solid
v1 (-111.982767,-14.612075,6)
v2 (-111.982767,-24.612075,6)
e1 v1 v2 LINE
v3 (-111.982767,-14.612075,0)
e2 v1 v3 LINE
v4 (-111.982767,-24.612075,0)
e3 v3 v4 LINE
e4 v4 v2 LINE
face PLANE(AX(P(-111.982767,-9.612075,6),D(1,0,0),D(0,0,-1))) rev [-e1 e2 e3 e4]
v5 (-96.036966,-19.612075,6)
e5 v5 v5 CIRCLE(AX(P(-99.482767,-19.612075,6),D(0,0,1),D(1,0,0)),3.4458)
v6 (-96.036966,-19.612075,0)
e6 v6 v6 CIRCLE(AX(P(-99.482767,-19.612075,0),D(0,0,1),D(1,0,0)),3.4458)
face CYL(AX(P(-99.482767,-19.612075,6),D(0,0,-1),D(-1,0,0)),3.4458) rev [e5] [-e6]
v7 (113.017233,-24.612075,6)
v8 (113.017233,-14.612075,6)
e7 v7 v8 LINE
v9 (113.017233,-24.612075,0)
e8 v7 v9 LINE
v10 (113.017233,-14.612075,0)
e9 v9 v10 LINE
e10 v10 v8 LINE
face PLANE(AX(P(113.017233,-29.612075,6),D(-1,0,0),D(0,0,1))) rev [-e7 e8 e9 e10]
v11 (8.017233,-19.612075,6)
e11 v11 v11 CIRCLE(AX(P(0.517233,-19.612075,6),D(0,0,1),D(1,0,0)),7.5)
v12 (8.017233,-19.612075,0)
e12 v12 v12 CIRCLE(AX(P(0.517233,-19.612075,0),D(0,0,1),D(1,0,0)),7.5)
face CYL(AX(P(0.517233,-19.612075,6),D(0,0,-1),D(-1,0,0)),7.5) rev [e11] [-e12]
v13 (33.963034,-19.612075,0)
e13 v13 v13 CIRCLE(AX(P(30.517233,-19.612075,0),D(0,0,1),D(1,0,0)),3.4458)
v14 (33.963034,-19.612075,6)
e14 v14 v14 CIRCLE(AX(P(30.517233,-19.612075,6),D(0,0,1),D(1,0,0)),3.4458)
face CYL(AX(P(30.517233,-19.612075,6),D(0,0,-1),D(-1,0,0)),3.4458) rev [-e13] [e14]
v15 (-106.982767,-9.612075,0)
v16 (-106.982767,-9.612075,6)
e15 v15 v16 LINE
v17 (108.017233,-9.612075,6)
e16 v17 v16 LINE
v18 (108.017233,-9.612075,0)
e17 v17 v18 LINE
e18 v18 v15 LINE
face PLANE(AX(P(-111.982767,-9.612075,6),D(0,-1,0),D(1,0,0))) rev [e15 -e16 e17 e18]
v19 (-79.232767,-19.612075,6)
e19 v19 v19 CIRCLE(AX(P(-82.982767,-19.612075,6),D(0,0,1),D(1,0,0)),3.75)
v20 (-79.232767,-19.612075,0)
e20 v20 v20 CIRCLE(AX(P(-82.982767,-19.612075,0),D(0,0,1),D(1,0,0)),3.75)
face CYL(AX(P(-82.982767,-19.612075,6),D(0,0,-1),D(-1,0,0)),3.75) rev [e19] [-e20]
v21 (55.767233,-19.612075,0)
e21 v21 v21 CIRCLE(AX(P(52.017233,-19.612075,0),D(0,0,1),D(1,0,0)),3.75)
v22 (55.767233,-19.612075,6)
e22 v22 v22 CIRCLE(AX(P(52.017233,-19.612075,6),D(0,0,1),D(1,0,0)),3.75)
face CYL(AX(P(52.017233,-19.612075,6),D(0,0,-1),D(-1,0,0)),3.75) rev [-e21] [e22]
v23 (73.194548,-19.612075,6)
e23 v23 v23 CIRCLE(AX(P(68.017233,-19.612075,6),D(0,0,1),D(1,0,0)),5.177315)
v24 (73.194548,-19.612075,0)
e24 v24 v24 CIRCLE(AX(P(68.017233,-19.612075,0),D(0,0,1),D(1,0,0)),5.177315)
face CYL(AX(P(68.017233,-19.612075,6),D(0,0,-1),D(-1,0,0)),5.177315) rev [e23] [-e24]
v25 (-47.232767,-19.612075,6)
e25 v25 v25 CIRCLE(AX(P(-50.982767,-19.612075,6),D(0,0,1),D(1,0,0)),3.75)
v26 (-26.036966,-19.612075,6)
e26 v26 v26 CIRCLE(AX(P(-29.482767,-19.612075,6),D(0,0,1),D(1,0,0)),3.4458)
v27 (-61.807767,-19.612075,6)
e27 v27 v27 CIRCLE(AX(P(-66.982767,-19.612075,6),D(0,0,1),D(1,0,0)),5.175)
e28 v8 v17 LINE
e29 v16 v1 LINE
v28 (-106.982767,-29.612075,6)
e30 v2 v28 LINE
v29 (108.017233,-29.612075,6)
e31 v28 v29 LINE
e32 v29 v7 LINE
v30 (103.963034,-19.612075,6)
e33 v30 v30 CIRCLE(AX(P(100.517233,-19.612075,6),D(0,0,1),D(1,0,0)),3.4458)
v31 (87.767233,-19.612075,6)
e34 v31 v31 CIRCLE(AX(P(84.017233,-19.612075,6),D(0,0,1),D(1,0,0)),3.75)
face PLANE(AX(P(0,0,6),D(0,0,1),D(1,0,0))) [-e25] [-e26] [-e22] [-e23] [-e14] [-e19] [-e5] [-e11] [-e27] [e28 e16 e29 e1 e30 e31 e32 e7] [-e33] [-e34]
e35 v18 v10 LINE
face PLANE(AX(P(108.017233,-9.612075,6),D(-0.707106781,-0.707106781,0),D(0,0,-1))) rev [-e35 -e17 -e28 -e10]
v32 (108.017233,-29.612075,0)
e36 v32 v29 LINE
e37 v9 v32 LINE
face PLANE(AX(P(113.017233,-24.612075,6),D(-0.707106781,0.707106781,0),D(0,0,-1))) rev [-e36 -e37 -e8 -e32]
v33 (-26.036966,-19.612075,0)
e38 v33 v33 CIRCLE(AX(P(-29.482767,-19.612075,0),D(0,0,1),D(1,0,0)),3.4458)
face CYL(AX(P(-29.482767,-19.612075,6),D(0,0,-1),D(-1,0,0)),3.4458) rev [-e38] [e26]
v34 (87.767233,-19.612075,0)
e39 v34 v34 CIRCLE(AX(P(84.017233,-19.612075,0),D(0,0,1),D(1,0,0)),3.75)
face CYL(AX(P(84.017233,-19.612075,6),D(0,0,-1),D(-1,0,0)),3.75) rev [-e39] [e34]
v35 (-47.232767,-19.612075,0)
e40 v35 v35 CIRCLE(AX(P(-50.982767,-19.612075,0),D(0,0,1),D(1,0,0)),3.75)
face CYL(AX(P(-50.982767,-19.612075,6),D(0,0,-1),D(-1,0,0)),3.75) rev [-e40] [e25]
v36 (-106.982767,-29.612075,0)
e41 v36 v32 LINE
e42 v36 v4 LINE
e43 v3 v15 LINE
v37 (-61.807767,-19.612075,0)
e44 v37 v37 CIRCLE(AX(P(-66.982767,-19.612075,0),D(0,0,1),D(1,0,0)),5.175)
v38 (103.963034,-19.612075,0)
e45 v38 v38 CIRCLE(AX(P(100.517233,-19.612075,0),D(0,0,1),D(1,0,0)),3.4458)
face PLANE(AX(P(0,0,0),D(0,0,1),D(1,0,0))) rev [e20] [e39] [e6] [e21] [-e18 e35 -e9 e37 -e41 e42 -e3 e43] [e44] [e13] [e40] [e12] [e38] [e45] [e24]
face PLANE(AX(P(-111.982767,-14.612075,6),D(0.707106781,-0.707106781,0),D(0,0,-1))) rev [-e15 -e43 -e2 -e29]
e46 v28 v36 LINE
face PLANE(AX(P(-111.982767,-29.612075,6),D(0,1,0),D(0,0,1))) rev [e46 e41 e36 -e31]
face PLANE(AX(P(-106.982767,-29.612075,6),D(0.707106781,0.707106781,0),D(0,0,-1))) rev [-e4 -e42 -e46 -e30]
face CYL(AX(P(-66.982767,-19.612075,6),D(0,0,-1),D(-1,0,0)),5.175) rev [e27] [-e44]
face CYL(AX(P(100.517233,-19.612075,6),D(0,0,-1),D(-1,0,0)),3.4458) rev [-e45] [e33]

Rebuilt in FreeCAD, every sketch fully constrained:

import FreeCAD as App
import Part
import Sketcher

V = App.Vector
Q = App.Units.Quantity


def edges_at(feature, points):
    """Names of the edges that pass closest to the given points."""
    edges = feature.Shape.Edges
    near = lambda p: min(range(len(edges)), key=lambda i: edges[i].distToShape(Part.Vertex(*p))[0])
    return sorted({f"Edge{near(p) + 1}" for p in points})

doc = App.newDocument("Part")
body = doc.addObject("PartDesign::Body", "Body")

# Sketch on XY plane
sketch1 = doc.addObject("Sketcher::SketchObject", "Sketch")
body.addObject(sketch1)
sketch1.AttachmentSupport = (doc.XY_Plane, [""])
sketch1.MapMode = "FlatFace"
sketch1.addGeometry([
    Part.LineSegment(V(-112, -9.6, 0), V(-112, -29.6, 0)),  # 0
    Part.LineSegment(V(-112, -29.6, 0), V(113, -29.6, 0)),  # 1
    Part.LineSegment(V(113, -29.6, 0), V(113, -9.6, 0)),  # 2
    Part.LineSegment(V(113, -9.6, 0), V(-112, -9.6, 0)),  # 3
    Part.Circle(V(-99.5, -19.6, 0), V(0, 0, 1), 3.4),  # 4
    Part.Circle(V(-83, -19.6, 0), V(0, 0, 1), 3.8),  # 5
    Part.Circle(V(-67, -19.6, 0), V(0, 0, 1), 5.2),  # 6
    Part.Circle(V(-51, -19.6, 0), V(0, 0, 1), 3.8),  # 7
    Part.Circle(V(-29.5, -19.6, 0), V(0, 0, 1), 3.4),  # 8
    Part.Circle(V(0.5, -19.6, 0), V(0, 0, 1), 7.5),  # 9
    Part.Circle(V(30.5, -19.6, 0), V(0, 0, 1), 3.4),  # 10
    Part.Circle(V(52, -19.6, 0), V(0, 0, 1), 3.8),  # 11
    Part.Circle(V(68, -19.6, 0), V(0, 0, 1), 5.2),  # 12
    Part.Circle(V(84, -19.6, 0), V(0, 0, 1), 3.8),  # 13
    Part.Circle(V(100.5, -19.6, 0), V(0, 0, 1), 3.4),  # 14
], False)
sketch1.addConstraint([
    Sketcher.Constraint("Coincident", 0, 2, 1, 1),
    Sketcher.Constraint("Coincident", 1, 2, 2, 1),
    Sketcher.Constraint("Coincident", 2, 2, 3, 1),
    Sketcher.Constraint("Coincident", 3, 2, 0, 1),
    Sketcher.Constraint("Vertical", 0),
    Sketcher.Constraint("Horizontal", 1),
    Sketcher.Constraint("Vertical", 2),
    Sketcher.Constraint("Horizontal", 3),
    Sketcher.Constraint("Equal", 5, 7),
    Sketcher.Constraint("Equal", 4, 8),
    Sketcher.Constraint("Equal", 8, 10),
    Sketcher.Constraint("Equal", 7, 11),
    Sketcher.Constraint("Equal", 11, 13),
    Sketcher.Constraint("Equal", 10, 14),
    Sketcher.Constraint("Horizontal", 4, 3, 5, 3),
    Sketcher.Constraint("Horizontal", 5, 3, 6, 3),
    Sketcher.Constraint("Horizontal", 6, 3, 7, 3),
    Sketcher.Constraint("Horizontal", 7, 3, 8, 3),
    Sketcher.Constraint("Horizontal", 8, 3, 9, 3),
    Sketcher.Constraint("Horizontal", 9, 3, 10, 3),
    Sketcher.Constraint("Horizontal", 10, 3, 11, 3),
    Sketcher.Constraint("Horizontal", 11, 3, 12, 3),
    Sketcher.Constraint("Horizontal", 12, 3, 13, 3),
    Sketcher.Constraint("Horizontal", 13, 3, 14, 3),
    Sketcher.Constraint("Diameter", 9, Q("15 mm")),
    Sketcher.Constraint("Diameter", 5, Q("7.5 mm")),
    Sketcher.Constraint("Diameter", 6, Q("10.35 mm")),
    Sketcher.Constraint("DistanceX", 1, 1, 1, 2, Q("225 mm")),
    Sketcher.Constraint("DistanceY", 0, 2, 0, 1, Q("20 mm")),
    Sketcher.Constraint("DistanceX", 5, 3, 6, 3, Q("16 mm")),
    Sketcher.Constraint("DistanceX", 6, 3, 7, 3, Q("16 mm")),
    Sketcher.Constraint("DistanceX", 4, 3, 8, 3, Q("70 mm")),
    Sketcher.Constraint("DistanceX", 8, 3, 9, 3, Q("30 mm")),
    Sketcher.Constraint("DistanceX", 9, 3, 10, 3, Q("30 mm")),
    Sketcher.Constraint("DistanceX", 7, 3, 11, 3, Q("103 mm")),
    Sketcher.Constraint("DistanceX", 11, 3, 12, 3, Q("16 mm")),
    Sketcher.Constraint("DistanceX", 12, 3, 13, 3, Q("16 mm")),
    Sketcher.Constraint("DistanceX", 10, 3, 14, 3, Q("70 mm")),
    Sketcher.Constraint("DistanceY", 0, 2, 4, 3, Q("10 mm")),
    Sketcher.Constraint("DistanceX", 0, 2, 5, 3, Q("29 mm")),
    Sketcher.Constraint("Diameter", 4, Q("6.891601 mm")),
    Sketcher.Constraint("DistanceX", 4, 3, 5, 3, Q("16.5 mm")),
    Sketcher.Constraint("Diameter", 12, Q("10.35463 mm")),
    Sketcher.Constraint("DistanceX", 4, 3, -1, 1, Q("99.482767 mm")),
    Sketcher.Constraint("DistanceY", 4, 3, -1, 1, Q("19.612075 mm")),
])
pad1 = doc.addObject("PartDesign::Pad", "Pad")
body.addObject(pad1)
pad1.Profile = sketch1
pad1.Length = 6
doc.recompute()

chamfer = doc.addObject("PartDesign::Chamfer", "Chamfer")
body.addObject(chamfer)
chamfer.Base = (pad1, edges_at(pad1, [
    (-111.983, -9.612, 3),
    (113.017, -9.612, 3),
    (113.017, -29.612, 3),
    (-111.983, -29.612, 3),
]))
chamfer.Size = 5

doc.recompute()
